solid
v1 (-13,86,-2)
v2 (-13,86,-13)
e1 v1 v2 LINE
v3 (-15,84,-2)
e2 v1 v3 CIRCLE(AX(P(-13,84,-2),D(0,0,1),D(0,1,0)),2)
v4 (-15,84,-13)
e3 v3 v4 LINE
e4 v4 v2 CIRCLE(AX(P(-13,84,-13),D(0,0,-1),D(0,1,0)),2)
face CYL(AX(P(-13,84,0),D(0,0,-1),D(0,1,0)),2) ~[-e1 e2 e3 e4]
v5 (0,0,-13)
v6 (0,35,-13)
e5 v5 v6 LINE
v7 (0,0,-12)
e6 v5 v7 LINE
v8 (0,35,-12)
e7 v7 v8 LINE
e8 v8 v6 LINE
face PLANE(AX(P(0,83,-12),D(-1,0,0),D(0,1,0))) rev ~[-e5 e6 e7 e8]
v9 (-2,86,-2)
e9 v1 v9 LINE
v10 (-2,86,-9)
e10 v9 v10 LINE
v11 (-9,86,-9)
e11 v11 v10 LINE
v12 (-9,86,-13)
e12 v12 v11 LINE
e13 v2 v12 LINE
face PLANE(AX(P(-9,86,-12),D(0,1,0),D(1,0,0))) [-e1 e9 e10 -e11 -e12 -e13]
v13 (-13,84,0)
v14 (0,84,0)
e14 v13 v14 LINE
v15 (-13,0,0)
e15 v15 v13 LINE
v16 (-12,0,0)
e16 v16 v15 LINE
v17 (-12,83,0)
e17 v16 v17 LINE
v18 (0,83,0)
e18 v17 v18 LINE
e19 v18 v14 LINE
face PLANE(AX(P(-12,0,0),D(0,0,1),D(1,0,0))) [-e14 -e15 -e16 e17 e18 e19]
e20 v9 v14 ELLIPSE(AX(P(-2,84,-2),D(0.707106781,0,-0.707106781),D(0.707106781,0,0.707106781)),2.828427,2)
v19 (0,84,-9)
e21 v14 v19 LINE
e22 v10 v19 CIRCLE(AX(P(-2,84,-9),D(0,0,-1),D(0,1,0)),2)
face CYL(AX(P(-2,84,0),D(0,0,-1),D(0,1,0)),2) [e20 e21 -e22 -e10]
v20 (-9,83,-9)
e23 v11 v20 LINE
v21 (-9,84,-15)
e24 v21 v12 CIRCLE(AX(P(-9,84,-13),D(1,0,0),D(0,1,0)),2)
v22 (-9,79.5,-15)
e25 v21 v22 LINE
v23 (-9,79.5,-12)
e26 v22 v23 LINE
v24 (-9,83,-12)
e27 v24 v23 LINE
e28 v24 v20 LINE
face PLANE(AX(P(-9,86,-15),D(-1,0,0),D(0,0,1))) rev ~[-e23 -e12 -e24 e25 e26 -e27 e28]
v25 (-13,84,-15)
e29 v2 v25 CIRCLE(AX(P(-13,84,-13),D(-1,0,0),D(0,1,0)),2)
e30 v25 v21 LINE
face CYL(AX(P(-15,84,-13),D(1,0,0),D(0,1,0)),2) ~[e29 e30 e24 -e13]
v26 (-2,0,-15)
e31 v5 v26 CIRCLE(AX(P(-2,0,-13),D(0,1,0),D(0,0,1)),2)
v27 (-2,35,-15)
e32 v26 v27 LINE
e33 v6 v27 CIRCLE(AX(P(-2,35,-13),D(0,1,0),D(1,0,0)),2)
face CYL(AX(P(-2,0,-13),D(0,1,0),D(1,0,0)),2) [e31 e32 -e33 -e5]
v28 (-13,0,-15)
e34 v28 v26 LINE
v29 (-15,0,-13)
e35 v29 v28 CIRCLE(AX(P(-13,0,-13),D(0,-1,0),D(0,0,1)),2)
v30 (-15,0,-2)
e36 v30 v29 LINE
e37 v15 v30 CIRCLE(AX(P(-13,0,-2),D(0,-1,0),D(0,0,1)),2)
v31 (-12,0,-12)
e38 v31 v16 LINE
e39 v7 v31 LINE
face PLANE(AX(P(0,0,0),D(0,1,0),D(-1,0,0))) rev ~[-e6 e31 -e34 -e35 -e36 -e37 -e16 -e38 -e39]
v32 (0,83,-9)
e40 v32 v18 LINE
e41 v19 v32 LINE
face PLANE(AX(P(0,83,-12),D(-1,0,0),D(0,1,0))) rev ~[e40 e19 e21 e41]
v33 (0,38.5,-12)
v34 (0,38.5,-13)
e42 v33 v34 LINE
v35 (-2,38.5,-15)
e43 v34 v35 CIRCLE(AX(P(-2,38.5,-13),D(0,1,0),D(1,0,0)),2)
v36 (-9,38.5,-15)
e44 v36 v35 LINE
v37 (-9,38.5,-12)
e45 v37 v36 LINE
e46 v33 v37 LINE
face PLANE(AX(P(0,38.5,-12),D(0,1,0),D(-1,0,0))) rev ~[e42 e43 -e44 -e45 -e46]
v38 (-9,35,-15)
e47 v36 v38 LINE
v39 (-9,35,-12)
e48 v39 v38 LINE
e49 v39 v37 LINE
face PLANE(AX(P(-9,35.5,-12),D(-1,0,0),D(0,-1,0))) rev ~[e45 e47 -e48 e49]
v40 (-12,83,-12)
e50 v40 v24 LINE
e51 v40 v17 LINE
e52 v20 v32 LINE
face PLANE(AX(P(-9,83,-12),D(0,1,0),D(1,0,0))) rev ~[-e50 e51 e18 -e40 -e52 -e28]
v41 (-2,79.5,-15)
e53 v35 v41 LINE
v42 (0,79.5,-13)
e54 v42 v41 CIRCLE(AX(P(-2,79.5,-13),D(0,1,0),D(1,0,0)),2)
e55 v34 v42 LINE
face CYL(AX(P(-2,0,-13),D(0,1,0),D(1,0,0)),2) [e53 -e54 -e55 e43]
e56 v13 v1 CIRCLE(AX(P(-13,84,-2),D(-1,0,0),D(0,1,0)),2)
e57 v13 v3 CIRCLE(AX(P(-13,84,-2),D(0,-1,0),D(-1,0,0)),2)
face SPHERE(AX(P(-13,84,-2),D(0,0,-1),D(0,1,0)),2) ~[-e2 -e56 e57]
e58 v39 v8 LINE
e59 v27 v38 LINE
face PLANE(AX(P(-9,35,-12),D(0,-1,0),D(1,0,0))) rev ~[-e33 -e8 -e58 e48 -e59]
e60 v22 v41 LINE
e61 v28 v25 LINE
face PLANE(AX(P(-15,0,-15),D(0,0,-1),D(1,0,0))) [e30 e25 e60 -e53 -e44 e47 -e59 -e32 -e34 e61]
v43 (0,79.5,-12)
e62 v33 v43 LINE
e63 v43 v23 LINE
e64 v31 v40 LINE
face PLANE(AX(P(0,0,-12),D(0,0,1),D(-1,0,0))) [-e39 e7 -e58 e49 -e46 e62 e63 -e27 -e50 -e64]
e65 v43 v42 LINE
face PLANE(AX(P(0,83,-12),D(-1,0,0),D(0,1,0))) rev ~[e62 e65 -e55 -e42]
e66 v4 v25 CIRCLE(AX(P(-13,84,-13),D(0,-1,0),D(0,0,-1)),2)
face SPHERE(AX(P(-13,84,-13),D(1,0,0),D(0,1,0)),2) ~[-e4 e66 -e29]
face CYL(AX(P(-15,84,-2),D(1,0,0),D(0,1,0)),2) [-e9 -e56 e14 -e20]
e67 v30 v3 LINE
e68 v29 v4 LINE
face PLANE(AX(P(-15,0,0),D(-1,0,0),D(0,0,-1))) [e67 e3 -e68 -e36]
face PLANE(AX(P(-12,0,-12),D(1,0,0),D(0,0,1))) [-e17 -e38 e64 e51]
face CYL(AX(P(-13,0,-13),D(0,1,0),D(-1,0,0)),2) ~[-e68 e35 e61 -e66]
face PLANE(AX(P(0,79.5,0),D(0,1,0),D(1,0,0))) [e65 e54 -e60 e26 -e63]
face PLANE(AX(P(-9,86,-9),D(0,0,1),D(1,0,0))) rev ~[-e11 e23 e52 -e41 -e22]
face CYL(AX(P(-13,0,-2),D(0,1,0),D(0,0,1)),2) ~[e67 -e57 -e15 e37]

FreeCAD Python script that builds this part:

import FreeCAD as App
import Part
import Sketcher

V = App.Vector


def edges_at(feature, points):
    """Names of the edges that pass closest to the given points."""
    edges = feature.Shape.Edges
    near = lambda p: min(range(len(edges)), key=lambda i: edges[i].distToShape(Part.Vertex(*p))[0])
    return sorted({f"Edge{near(p) + 1}" for p in points})

doc = App.newDocument("Part")
body = doc.addObject("PartDesign::Body", "Body")

sketch1 = body.newObject("Sketcher::SketchObject", "Sketch")
sketch1.AttachmentSupport = (doc.getObject("XZ_Plane"), [""])
sketch1.MapMode = "FlatFace"
sketch1.addGeometry(Part.LineSegment(V(-15, -15, 0), V(-15, 0, 0)), False)
sketch1.addGeometry(Part.LineSegment(V(-15, 0, 0), V(-12, 0, 0)), False)
sketch1.addGeometry(Part.LineSegment(V(-12, 0, 0), V(-12, -12, 0)), False)
sketch1.addGeometry(Part.LineSegment(V(-12, -12, 0), V(0, -12, 0)), False)
sketch1.addGeometry(Part.LineSegment(V(0, -12, 0), V(0, -15, 0)), False)
sketch1.addGeometry(Part.LineSegment(V(0, -15, 0), V(-15, -15, 0)), False)
sketch1.addConstraint(Sketcher.Constraint("Coincident", 0, 2, 1, 1))
sketch1.addConstraint(Sketcher.Constraint("Coincident", 1, 2, 2, 1))
sketch1.addConstraint(Sketcher.Constraint("Coincident", 2, 2, 3, 1))
sketch1.addConstraint(Sketcher.Constraint("Coincident", 3, 2, 4, 1))
sketch1.addConstraint(Sketcher.Constraint("Coincident", 4, 2, 5, 1))
sketch1.addConstraint(Sketcher.Constraint("Coincident", 5, 2, 0, 1))
sketch1.addConstraint(Sketcher.Constraint("Vertical", 0))
sketch1.addConstraint(Sketcher.Constraint("Horizontal", 1))
sketch1.addConstraint(Sketcher.Constraint("Vertical", 2))
sketch1.addConstraint(Sketcher.Constraint("Horizontal", 3))
sketch1.addConstraint(Sketcher.Constraint("Vertical", 4))
sketch1.addConstraint(Sketcher.Constraint("Horizontal", 5))
sketch1.addConstraint(Sketcher.Constraint("PointOnObject", 0, 2, -1))
sketch1.addConstraint(Sketcher.Constraint("PointOnObject", 3, 2, -2))
sketch1.addConstraint(Sketcher.Constraint("Equal", 5, 0))
sketch1.addConstraint(Sketcher.Constraint("Equal", 3, 2))
sketch1.addConstraint(Sketcher.Constraint("DistanceX", 1, 1, 1, 2, 3.0))
sketch1.addConstraint(Sketcher.Constraint("DistanceX", 3, 1, 3, 2, 12.0))
pad1 = body.newObject("PartDesign::Pad", "Pad")
pad1.Profile = sketch1
pad1.Length = 86
pad1.Reversed = True

sketch2 = body.newObject("Sketcher::SketchObject", "Sketch001")
sketch2.AttachmentSupport = (doc.getObject("YZ_Plane"), [""])
sketch2.MapMode = "FlatFace"
sketch2.AttachmentOffset = App.Placement(V(0, 0, -12), App.Rotation())
sketch2.addGeometry(Part.LineSegment(V(86, 0, 0), V(83, 0, 0)), False)
sketch2.addGeometry(Part.LineSegment(V(83, 0, 0), V(83, -12, 0)), False)
sketch2.addGeometry(Part.LineSegment(V(83, -12, 0), V(86, -12, 0)), False)
sketch2.addGeometry(Part.LineSegment(V(86, -12, 0), V(86, 0, 0)), False)
sketch2.addConstraint(Sketcher.Constraint("Coincident", 0, 2, 1, 1))
sketch2.addConstraint(Sketcher.Constraint("Coincident", 1, 2, 2, 1))
sketch2.addConstraint(Sketcher.Constraint("Coincident", 2, 2, 3, 1))
sketch2.addConstraint(Sketcher.Constraint("Coincident", 3, 2, 0, 1))
sketch2.addConstraint(Sketcher.Constraint("Horizontal", 0))
sketch2.addConstraint(Sketcher.Constraint("Vertical", 1))
sketch2.addConstraint(Sketcher.Constraint("Horizontal", 2))
sketch2.addConstraint(Sketcher.Constraint("Vertical", 3))
sketch2.addConstraint(Sketcher.Constraint("PointOnObject", 0, 2, -1))
sketch2.addConstraint(Sketcher.Constraint("DistanceX", 0, 2, 0, 1, 3.0))
sketch2.addConstraint(Sketcher.Constraint("DistanceY", 1, 2, 1, 1, 12.0))
sketch2.addConstraint(Sketcher.Constraint("DistanceX", -1, 1, 0, 2, 83.0))
pad2 = body.newObject("PartDesign::Pad", "Pad001")
pad2.Profile = sketch2
pad2.Length = 3

sketch3 = body.newObject("Sketcher::SketchObject", "Sketch002")
sketch3.AttachmentSupport = (doc.getObject("XY_Plane"), [""])
sketch3.MapMode = "FlatFace"
sketch3.AttachmentOffset = App.Placement(V(0, 0, -12), App.Rotation())
sketch3.addGeometry(Part.LineSegment(V(0, 86, 0), V(-9, 86, 0)), False)
sketch3.addGeometry(Part.LineSegment(V(-9, 86, 0), V(-9, 83, 0)), False)
sketch3.addGeometry(Part.LineSegment(V(-9, 83, 0), V(0, 83, 0)), False)
sketch3.addGeometry(Part.LineSegment(V(0, 83, 0), V(0, 86, 0)), False)
sketch3.addConstraint(Sketcher.Constraint("Coincident", 0, 2, 1, 1))
sketch3.addConstraint(Sketcher.Constraint("Coincident", 1, 2, 2, 1))
sketch3.addConstraint(Sketcher.Constraint("Coincident", 2, 2, 3, 1))
sketch3.addConstraint(Sketcher.Constraint("Coincident", 3, 2, 0, 1))
sketch3.addConstraint(Sketcher.Constraint("Horizontal", 0))
sketch3.addConstraint(Sketcher.Constraint("Vertical", 1))
sketch3.addConstraint(Sketcher.Constraint("Horizontal", 2))
sketch3.addConstraint(Sketcher.Constraint("Vertical", 3))
sketch3.addConstraint(Sketcher.Constraint("PointOnObject", 2, 2, -2))
sketch3.addConstraint(Sketcher.Constraint("DistanceX", 0, 2, 0, 1, 9.0))
sketch3.addConstraint(Sketcher.Constraint("DistanceY", 1, 2, 1, 1, 3.0))
sketch3.addConstraint(Sketcher.Constraint("DistanceY", -1, 1, 0, 2, 86.0))
pad3 = body.newObject("PartDesign::Pad", "Pad002")
pad3.Profile = sketch3
pad3.Length = 12
doc.recompute()

fillet = body.newObject("PartDesign::Fillet", "Fillet")
fillet.Base = (pad3, edges_at(pad3, [
    (-7.5, 86, -15),
    (-15, 86, -7.5),
    (-15, 43, -15),
    (0, 43, -15),
    (-7.5, 86, 0),
    (0, 86, -7.5),
    (-15, 43, 0),
]))
fillet.Radius = 2

sketch4 = body.newObject("Sketcher::SketchObject", "Sketch003")
sketch4.AttachmentSupport = (doc.getObject("XZ_Plane"), [""])
sketch4.MapMode = "FlatFace"
sketch4.AttachmentOffset = App.Placement(V(0, 0, -86), App.Rotation())
sketch4.addGeometry(Part.LineSegment(V(0, -9, 0), V(0, -15, 0)), False)
sketch4.addGeometry(Part.LineSegment(V(0, -15, 0), V(-9, -15, 0)), False)
sketch4.addGeometry(Part.LineSegment(V(-9, -15, 0), V(-9, -9, 0)), False)
sketch4.addGeometry(Part.LineSegment(V(-9, -9, 0), V(0, -9, 0)), False)
sketch4.addConstraint(Sketcher.Constraint("Coincident", 0, 2, 1, 1))
sketch4.addConstraint(Sketcher.Constraint("Coincident", 1, 2, 2, 1))
sketch4.addConstraint(Sketcher.Constraint("Coincident", 2, 2, 3, 1))
sketch4.addConstraint(Sketcher.Constraint("Coincident", 3, 2, 0, 1))
sketch4.addConstraint(Sketcher.Constraint("Vertical", 0))
sketch4.addConstraint(Sketcher.Constraint("Horizontal", 1))
sketch4.addConstraint(Sketcher.Constraint("Vertical", 2))
sketch4.addConstraint(Sketcher.Constraint("Horizontal", 3))
sketch4.addConstraint(Sketcher.Constraint("PointOnObject", 0, 2, -2))
sketch4.addConstraint(Sketcher.Constraint("DistanceX", 1, 2, 1, 1, 9.0))
sketch4.addConstraint(Sketcher.Constraint("DistanceY", 0, 2, 0, 1, 6.0))
sketch4.addConstraint(Sketcher.Constraint("DistanceY", 0, 2, -1, 1, 15.0))
pocket1 = body.newObject("PartDesign::Pocket", "Pocket")
pocket1.Profile = sketch4
pocket1.Length = 6.5
pocket1.Reversed = True

sketch5 = body.newObject("Sketcher::SketchObject", "Sketch004")
sketch5.AttachmentSupport = (doc.getObject("XY_Plane"), [""])
sketch5.MapMode = "FlatFace"
sketch5.AttachmentOffset = App.Placement(V(0, 0, -12), App.Rotation())
sketch5.addGeometry(Part.LineSegment(V(-9, 35, 0), V(0, 35, 0)), False)
sketch5.addGeometry(Part.LineSegment(V(0, 35, 0), V(0, 38.5, 0)), False)
sketch5.addGeometry(Part.LineSegment(V(0, 38.5, 0), V(-9, 38.5, 0)), False)
sketch5.addGeometry(Part.LineSegment(V(-9, 38.5, 0), V(-9, 35, 0)), False)
sketch5.addConstraint(Sketcher.Constraint("Coincident", 0, 2, 1, 1))
sketch5.addConstraint(Sketcher.Constraint("Coincident", 1, 2, 2, 1))
sketch5.addConstraint(Sketcher.Constraint("Coincident", 2, 2, 3, 1))
sketch5.addConstraint(Sketcher.Constraint("Coincident", 3, 2, 0, 1))
sketch5.addConstraint(Sketcher.Constraint("Horizontal", 0))
sketch5.addConstraint(Sketcher.Constraint("Vertical", 1))
sketch5.addConstraint(Sketcher.Constraint("Horizontal", 2))
sketch5.addConstraint(Sketcher.Constraint("Vertical", 3))
sketch5.addConstraint(Sketcher.Constraint("PointOnObject", 0, 2, -2))
sketch5.addConstraint(Sketcher.Constraint("DistanceX", 0, 1, 0, 2, 9.0))
sketch5.addConstraint(Sketcher.Constraint("DistanceY", 1, 1, 1, 2, 3.5))
sketch5.addConstraint(Sketcher.Constraint("DistanceY", -1, 1, 0, 2, 35.0))
pocket2 = body.newObject("PartDesign::Pocket", "Pocket001")
pocket2.Profile = sketch5
pocket2.Type = "ThroughAll"

doc.recompute()
